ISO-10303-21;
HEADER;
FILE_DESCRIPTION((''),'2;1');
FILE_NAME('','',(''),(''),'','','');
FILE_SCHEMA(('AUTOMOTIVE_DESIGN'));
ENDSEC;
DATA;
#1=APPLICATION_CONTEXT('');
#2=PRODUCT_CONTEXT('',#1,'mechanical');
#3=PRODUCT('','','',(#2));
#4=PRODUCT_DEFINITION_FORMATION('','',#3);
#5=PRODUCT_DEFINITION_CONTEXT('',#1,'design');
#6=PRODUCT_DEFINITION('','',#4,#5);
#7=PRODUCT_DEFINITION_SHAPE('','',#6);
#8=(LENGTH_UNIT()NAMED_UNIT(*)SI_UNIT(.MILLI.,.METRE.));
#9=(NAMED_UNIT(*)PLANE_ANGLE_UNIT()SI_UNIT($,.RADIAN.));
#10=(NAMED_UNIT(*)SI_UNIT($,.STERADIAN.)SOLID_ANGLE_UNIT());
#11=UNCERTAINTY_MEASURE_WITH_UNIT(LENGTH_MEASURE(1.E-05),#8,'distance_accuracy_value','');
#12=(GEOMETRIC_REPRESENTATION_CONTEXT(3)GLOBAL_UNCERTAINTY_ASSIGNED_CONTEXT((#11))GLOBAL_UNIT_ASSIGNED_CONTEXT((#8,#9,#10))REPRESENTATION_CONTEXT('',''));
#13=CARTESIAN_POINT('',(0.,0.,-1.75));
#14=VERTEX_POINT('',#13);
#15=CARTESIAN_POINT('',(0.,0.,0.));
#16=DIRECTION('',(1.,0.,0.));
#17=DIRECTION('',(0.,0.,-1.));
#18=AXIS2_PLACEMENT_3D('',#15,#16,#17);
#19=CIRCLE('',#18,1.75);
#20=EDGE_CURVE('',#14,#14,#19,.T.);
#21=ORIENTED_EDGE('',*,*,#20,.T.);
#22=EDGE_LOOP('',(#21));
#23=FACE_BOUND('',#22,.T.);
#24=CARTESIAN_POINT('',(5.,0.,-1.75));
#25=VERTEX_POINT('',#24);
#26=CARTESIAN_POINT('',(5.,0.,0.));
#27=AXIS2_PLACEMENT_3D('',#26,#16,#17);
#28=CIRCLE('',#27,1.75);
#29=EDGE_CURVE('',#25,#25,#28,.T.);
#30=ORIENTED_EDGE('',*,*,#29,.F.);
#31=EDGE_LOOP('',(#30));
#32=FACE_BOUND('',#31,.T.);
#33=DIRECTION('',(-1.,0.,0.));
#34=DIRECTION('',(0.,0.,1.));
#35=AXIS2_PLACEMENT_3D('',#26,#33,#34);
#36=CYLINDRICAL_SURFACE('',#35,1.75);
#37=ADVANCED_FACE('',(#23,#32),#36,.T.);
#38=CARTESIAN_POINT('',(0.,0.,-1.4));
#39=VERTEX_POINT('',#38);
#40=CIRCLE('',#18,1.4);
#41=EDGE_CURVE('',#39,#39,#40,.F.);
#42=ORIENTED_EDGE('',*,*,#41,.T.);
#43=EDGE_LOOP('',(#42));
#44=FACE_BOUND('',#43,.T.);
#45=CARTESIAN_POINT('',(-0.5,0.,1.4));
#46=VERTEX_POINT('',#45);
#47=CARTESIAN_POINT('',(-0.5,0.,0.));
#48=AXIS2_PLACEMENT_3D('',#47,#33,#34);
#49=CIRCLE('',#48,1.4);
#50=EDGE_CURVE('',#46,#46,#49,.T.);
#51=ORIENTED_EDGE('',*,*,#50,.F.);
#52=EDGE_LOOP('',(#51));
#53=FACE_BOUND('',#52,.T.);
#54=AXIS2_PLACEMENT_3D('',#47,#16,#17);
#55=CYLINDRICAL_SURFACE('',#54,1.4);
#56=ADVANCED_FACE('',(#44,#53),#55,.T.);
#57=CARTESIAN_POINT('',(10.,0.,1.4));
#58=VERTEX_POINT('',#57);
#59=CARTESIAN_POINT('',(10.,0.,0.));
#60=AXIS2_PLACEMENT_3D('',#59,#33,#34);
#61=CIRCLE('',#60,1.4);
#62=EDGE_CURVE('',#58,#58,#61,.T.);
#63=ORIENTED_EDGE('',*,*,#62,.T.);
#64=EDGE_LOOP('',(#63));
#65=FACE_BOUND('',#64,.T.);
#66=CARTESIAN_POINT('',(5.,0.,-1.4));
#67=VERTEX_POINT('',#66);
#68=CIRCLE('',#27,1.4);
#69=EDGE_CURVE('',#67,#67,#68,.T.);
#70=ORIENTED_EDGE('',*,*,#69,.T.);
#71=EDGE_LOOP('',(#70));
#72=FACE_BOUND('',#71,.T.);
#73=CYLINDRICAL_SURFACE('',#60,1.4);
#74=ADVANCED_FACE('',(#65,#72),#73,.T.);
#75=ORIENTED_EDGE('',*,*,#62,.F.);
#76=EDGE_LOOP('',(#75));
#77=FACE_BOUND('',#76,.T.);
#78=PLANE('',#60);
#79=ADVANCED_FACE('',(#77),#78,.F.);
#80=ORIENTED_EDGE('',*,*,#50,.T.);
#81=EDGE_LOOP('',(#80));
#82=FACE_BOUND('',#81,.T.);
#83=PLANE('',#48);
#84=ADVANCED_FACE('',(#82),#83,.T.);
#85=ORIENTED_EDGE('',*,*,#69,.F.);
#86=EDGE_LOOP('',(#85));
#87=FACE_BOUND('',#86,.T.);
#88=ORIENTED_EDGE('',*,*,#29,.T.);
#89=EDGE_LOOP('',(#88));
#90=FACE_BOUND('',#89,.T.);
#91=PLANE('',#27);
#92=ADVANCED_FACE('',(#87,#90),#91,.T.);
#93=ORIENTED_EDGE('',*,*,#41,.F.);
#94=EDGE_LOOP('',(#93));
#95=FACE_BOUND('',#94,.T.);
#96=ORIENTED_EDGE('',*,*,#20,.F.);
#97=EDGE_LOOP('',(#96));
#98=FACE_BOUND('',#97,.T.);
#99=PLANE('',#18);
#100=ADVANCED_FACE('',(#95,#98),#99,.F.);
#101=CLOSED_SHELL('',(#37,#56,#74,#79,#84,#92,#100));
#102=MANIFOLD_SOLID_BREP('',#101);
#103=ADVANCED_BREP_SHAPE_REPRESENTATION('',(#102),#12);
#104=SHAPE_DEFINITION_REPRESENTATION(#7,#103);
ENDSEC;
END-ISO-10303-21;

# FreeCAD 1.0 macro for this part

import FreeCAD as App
import Part
import Sketcher

doc = App.newDocument("Part")
body = doc.addObject("PartDesign::Body", "Body")

# Sketch on YZ plane
sketch1 = body.newObject("Sketcher::SketchObject", "Sketch")
sketch1.AttachmentSupport = (doc.getObject("YZ_Plane"), [""])
sketch1.MapMode = "FlatFace"
sketch1.addGeometry(Part.Circle(App.Vector(0, 0, 0), App.Vector(0, 0, 1), 1.8), False)
sketch1.addConstraint(Sketcher.Constraint("Coincident", 0, 3, -1, 1))
sketch1.addConstraint(Sketcher.Constraint("Diameter", 0, 3.5))
pad1 = body.newObject("PartDesign::Pad", "Pad")
pad1.Profile = sketch1
pad1.Length = 5

# Sketch on YZ plane
sketch2 = body.newObject("Sketcher::SketchObject", "Sketch001")
sketch2.AttachmentSupport = (doc.getObject("YZ_Plane"), [""])
sketch2.MapMode = "FlatFace"
sketch2.addGeometry(Part.Circle(App.Vector(0, 0, 0), App.Vector(0, 0, 1), 1.4), False)
sketch2.addConstraint(Sketcher.Constraint("Coincident", 0, 3, -1, 1))
sketch2.addConstraint(Sketcher.Constraint("Diameter", 0, 2.8))
pad2 = body.newObject("PartDesign::Pad", "Pad001")
pad2.Profile = sketch2
pad2.Length = 10

# Sketch on YZ plane
sketch3 = body.newObject("Sketcher::SketchObject", "Sketch002")
sketch3.AttachmentSupport = (doc.getObject("YZ_Plane"), [""])
sketch3.MapMode = "FlatFace"
sketch3.addGeometry(Part.Circle(App.Vector(0, 0, 0), App.Vector(0, 0, 1), 1.4), False)
sketch3.addConstraint(Sketcher.Constraint("Coincident", 0, 3, -1, 1))
sketch3.addConstraint(Sketcher.Constraint("Diameter", 0, 2.8))
pad3 = body.newObject("PartDesign::Pad", "Pad002")
pad3.Profile = sketch3
pad3.Length = 0.5
pad3.Reversed = True

doc.recompute()
